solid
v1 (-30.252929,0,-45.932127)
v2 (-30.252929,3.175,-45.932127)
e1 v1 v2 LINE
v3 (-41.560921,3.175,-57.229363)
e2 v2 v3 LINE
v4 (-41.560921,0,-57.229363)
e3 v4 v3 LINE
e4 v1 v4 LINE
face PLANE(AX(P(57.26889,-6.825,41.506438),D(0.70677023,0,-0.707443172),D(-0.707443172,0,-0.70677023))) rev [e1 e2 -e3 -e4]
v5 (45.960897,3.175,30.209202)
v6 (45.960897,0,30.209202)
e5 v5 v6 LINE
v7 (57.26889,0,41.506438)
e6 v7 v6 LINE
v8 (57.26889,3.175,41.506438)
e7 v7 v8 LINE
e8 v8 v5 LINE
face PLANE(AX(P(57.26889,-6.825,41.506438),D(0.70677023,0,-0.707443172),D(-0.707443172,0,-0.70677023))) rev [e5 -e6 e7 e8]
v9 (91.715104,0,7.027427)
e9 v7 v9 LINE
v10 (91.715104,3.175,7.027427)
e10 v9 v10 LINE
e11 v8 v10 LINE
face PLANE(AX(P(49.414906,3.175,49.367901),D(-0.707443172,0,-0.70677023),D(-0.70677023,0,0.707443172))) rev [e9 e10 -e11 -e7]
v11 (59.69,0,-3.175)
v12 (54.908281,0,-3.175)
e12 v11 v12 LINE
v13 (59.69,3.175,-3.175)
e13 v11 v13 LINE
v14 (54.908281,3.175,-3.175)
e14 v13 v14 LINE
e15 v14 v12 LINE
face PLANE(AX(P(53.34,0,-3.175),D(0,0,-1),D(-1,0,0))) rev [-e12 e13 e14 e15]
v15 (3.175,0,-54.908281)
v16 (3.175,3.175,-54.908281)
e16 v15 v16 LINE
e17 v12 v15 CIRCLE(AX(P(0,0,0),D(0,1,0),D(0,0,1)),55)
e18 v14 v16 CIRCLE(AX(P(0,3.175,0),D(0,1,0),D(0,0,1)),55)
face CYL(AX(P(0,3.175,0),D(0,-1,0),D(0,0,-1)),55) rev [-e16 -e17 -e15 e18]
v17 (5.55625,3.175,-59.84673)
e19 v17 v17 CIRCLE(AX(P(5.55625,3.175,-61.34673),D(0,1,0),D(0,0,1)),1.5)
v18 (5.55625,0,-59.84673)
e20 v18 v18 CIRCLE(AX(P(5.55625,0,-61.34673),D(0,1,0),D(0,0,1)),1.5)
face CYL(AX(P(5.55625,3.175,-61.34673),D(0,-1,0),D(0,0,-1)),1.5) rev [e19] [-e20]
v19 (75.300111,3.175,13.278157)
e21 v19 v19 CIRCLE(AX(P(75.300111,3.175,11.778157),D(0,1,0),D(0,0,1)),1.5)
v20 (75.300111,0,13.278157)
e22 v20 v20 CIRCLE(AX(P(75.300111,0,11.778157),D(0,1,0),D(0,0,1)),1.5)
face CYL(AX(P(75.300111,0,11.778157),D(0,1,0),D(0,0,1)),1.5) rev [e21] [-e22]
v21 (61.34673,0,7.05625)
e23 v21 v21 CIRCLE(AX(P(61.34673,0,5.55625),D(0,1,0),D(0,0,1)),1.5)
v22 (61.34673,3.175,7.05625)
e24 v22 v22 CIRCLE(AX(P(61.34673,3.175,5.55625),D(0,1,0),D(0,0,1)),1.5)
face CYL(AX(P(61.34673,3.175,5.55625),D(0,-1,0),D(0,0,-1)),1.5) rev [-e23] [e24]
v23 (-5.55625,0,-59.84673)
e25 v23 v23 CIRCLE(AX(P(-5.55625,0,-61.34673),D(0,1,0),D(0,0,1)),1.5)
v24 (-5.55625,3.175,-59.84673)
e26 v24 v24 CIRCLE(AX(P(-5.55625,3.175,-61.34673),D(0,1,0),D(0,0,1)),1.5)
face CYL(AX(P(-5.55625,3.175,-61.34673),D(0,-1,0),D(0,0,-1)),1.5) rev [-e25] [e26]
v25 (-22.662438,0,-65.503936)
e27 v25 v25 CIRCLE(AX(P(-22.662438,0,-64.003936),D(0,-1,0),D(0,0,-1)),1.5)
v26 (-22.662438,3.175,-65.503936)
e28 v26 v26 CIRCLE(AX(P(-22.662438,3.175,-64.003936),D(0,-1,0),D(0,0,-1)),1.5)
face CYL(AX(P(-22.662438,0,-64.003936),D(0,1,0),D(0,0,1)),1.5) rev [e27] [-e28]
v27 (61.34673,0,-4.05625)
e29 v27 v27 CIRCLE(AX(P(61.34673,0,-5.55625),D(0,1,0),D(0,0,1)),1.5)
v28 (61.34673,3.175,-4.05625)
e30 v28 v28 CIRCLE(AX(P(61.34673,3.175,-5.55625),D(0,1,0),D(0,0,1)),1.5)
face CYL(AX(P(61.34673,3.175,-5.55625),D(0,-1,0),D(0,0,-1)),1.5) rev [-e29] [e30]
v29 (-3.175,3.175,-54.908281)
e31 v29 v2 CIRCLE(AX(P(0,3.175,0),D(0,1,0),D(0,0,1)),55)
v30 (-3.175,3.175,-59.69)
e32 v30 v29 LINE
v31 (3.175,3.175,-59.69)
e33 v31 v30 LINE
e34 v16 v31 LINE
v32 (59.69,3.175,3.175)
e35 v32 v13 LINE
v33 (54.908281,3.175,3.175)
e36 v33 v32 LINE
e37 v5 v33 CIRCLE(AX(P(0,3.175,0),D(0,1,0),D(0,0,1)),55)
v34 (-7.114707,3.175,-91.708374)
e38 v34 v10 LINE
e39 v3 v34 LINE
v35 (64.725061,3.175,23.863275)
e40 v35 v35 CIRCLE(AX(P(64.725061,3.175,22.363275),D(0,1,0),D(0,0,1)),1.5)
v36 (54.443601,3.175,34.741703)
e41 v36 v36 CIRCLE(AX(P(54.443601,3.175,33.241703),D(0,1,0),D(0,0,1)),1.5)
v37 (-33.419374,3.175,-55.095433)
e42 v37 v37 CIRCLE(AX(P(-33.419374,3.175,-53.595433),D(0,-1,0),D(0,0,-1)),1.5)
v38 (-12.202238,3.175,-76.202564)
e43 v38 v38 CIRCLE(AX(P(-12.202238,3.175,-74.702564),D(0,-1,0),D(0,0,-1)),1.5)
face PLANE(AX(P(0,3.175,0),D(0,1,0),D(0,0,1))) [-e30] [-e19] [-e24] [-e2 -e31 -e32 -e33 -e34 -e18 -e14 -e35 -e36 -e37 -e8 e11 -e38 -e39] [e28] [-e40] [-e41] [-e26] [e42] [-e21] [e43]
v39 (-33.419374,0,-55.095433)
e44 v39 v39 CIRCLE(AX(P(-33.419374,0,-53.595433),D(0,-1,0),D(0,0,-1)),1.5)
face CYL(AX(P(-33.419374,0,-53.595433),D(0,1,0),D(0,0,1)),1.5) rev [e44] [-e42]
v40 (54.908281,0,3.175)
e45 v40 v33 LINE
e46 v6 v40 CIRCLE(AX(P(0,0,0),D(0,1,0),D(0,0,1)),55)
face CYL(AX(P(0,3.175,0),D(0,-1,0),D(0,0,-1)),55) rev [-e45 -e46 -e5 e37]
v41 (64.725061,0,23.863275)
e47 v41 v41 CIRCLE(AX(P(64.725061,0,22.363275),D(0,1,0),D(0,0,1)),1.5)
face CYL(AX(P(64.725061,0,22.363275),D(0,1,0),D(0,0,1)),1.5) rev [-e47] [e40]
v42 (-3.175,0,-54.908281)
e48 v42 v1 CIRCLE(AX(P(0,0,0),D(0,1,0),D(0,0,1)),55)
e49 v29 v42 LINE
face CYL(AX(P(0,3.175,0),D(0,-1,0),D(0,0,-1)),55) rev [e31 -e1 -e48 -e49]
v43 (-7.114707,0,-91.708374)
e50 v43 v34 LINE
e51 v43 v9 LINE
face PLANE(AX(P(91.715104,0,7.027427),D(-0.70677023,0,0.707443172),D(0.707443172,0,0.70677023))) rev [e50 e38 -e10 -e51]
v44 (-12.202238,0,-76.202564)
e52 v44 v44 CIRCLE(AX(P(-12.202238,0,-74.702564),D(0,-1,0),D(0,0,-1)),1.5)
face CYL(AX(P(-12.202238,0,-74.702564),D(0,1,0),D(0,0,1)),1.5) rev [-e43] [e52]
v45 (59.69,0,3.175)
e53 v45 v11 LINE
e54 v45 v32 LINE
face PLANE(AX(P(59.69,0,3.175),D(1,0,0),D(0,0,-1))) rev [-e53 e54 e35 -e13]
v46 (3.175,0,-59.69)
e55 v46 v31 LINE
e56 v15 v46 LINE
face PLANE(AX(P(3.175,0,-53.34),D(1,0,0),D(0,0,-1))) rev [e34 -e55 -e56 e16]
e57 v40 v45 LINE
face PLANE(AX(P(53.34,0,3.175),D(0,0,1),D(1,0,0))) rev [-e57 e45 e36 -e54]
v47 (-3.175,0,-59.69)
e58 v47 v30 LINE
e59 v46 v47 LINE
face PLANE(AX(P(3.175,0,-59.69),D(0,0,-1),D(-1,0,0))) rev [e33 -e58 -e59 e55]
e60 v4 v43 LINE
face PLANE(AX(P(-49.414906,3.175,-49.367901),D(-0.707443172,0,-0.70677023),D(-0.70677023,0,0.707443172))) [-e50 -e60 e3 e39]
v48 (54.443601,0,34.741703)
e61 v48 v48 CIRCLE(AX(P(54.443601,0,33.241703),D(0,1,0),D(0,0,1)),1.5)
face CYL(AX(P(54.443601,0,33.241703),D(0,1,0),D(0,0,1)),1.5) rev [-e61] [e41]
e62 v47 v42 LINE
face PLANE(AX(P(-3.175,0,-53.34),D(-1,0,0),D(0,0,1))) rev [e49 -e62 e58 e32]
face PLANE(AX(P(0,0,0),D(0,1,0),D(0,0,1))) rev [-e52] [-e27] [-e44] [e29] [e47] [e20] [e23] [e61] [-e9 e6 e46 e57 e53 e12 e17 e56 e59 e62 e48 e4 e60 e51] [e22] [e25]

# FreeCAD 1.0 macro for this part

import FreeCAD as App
import Part
import Sketcher
Q = App.Units.Quantity


def add_polygon(sketch, points):
    """Adds a closed chain of lines whose ends are joined by coincident constraints."""
    first, n = sketch.GeometryCount, len(points)
    for a, b in zip(points, points[1:] + points[:1]):
        sketch.addGeometry(Part.LineSegment(App.Vector(*a, 0), App.Vector(*b, 0)), False)
    for i in range(n):
        sketch.addConstraint(Sketcher.Constraint("Coincident", first + i, 2, first + (i + 1) % n, 1))

doc = App.newDocument("Part")
params = doc.addObject("Spreadsheet::Sheet", "Params")
for row, (alias, value) in enumerate([
    ("sketch1_length", "5.5 in"),
    ("pad1_length", "0.125 in"),
    ("sketch2_width", "0.25 in"),
    ("sketch3_length", "5.5 in"),
    ("sketch3_length2", "2.75 in"),
    ("sketch4_length", "5.5 in"),
    ("sketch6_length", "5.5 in"),
    ("sketch6_length2", "0.4375 in"),
    ("pocket5_length", "10 mm"),
], start=1):
    params.set(f"A{row}", alias)
    params.set(f"B{row}", "=" + value)
    params.setAlias(f"B{row}", alias)

body = doc.addObject("PartDesign::Body", "Body")

sketch1 = body.newObject("Sketcher::SketchObject", "Sketch")
sketch1.AttachmentSupport = (doc.getObject("XZ_Plane"), [""])
sketch1.MapMode = "FlatFace"
add_polygon(sketch1, [(-98.782806, 0.047005), (0.047005, 98.782806), (98.782806, -0.047005), (-0.047005, -98.782806)])
sketch1.addGeometry(Part.Circle(App.Vector(5.55625, 61.34673, 0), App.Vector(0, 0, 1), 1.5), False)
sketch1.addGeometry(Part.Circle(App.Vector(61.34673, 5.55625, 0), App.Vector(0, 0, 1), 1.5), False)
sketch1.addGeometry(Part.Circle(App.Vector(-5.55625, 61.34673, 0), App.Vector(0, 0, 1), 1.5), False)
sketch1.addGeometry(Part.Circle(App.Vector(-61.34673, 5.55625, 0), App.Vector(0, 0, 1), 1.5), False)
sketch1.addGeometry(Part.Circle(App.Vector(61.34673, -5.55625, 0), App.Vector(0, 0, 1), 1.5), False)
sketch1.addGeometry(Part.Circle(App.Vector(5.55625, -61.34673, 0), App.Vector(0, 0, 1), 1.5), False)
sketch1.addGeometry(Part.Circle(App.Vector(0, 0, 0), App.Vector(0, 0, 1), 55), False)
sketch1.addGeometry(Part.Circle(App.Vector(-61.34673, -5.55625, 0), App.Vector(0, 0, 1), 1.5), False)
sketch1.addGeometry(Part.Circle(App.Vector(-5.55625, -61.34673, 0), App.Vector(0, 0, 1), 1.5), False)
sketch1.addConstraint([
    Sketcher.Constraint("Coincident", 10, 3, -1, 1),
    Sketcher.Constraint("Equal", 4, 5),
    Sketcher.Constraint("Equal", 5, 6),
    Sketcher.Constraint("Equal", 6, 7),
    Sketcher.Constraint("Equal", 7, 8),
    Sketcher.Constraint("Equal", 8, 9),
    Sketcher.Constraint("Equal", 9, 11),
    Sketcher.Constraint("Equal", 11, 12),
    Sketcher.Constraint("Symmetric", 7, 3, 8, 3, -1, 1),
    Sketcher.Constraint("Symmetric", 6, 3, 9, 3, -1, 1),
    Sketcher.Constraint("Symmetric", 5, 3, 11, 3, -1, 1),
    Sketcher.Constraint("Symmetric", 4, 3, 12, 3, -1, 1),
    Sketcher.Constraint("Symmetric", 0, 2, 2, 2, -1, 1),
    Sketcher.Constraint("Symmetric", 1, 2, 3, 2, -1, 1),
    Sketcher.Constraint("Symmetric", 4, 3, 6, 3, -2),
    Sketcher.Constraint("Symmetric", 5, 3, 7, 3, -2),
    Sketcher.Constraint("Perpendicular", 0, 1),
    Sketcher.Constraint("Equal", 0, 1),
    Sketcher.Constraint("Distance", 0, Q("5.5 in")),
    Sketcher.Constraint("Diameter", 4, Q("3 mm")),
    Sketcher.Constraint("Diameter", 10, Q("110 mm")),
    Sketcher.Constraint("DistanceX", -1, 1, 4, 3, Q("0.21875 in")),
    Sketcher.Constraint("DistanceY", -1, 1, 5, 3, Q("0.21875 in")),
    Sketcher.Constraint("DistanceY", -1, 1, 4, 3, Q("61.34673 mm")),
    Sketcher.Constraint("DistanceX", -1, 1, 5, 3, Q("61.34673 mm")),
    Sketcher.Constraint("DistanceX", -1, 1, 0, 2, Q("0.047005 mm")),
])
sketch1.setExpression("Constraints[22]", "Params.sketch1_length")
pad1 = body.newObject("PartDesign::Pad", "Pad")
pad1.Profile = sketch1
pad1.setExpression("Length", "Params.pad1_length")
pad1.Reversed = True

sketch2 = body.newObject("Sketcher::SketchObject", "Sketch001")
sketch2.AttachmentSupport = (doc.getObject("XZ_Plane"), [""])
sketch2.MapMode = "FlatFace"
sketch2.AttachmentOffset = App.Placement(App.Vector(0, 0, -0.125 * 25.4), App.Rotation())
add_polygon(sketch2, [(3.175, -59.69), (-3.175, -59.69), (-3.175, -52.244538), (3.175, -52.244538)])
add_polygon(sketch2, [(59.69, 3.175), (59.69, -3.175), (52.244538, -3.175), (52.244538, 3.175)])
add_polygon(sketch2, [(-3.175, 59.69), (3.175, 59.69), (3.175, 52.244538), (-3.175, 52.244538)])
add_polygon(sketch2, [(-59.69, -3.175), (-59.69, 3.175), (-52.244538, 3.175), (-52.244538, -3.175)])
sketch2.addConstraint([
    Sketcher.Constraint("Horizontal", 0),
    Sketcher.Constraint("Vertical", 1),
    Sketcher.Constraint("Horizontal", 2),
    Sketcher.Constraint("Vertical", 3),
    Sketcher.Constraint("Vertical", 4),
    Sketcher.Constraint("Horizontal", 5),
    Sketcher.Constraint("Vertical", 6),
    Sketcher.Constraint("Horizontal", 7),
    Sketcher.Constraint("Horizontal", 8),
    Sketcher.Constraint("Vertical", 9),
    Sketcher.Constraint("Horizontal", 10),
    Sketcher.Constraint("Vertical", 11),
    Sketcher.Constraint("Vertical", 12),
    Sketcher.Constraint("Horizontal", 13),
    Sketcher.Constraint("Vertical", 14),
    Sketcher.Constraint("Horizontal", 15),
    Sketcher.Constraint("Symmetric", 0, 2, 8, 2, -1, 1),
    Sketcher.Constraint("Symmetric", 2, 2, 10, 2, -1, 1),
    Sketcher.Constraint("Symmetric", 4, 2, 12, 2, -1, 1),
    Sketcher.Constraint("Symmetric", 6, 2, 14, 2, -1, 1),
    Sketcher.Constraint("Horizontal", 7, 2, 12, 2),
    Sketcher.Constraint("Vertical", 3, 2, 8, 2),
    Sketcher.Constraint("Equal", 15, 1),
    Sketcher.Constraint("Equal", 10, 4),
    Sketcher.Constraint("DistanceX", 0, 2, 0, 1, Q("0.25 in")),
    Sketcher.Constraint("DistanceY", 0, 2, -1, 1, Q("2.35 in")),
    Sketcher.Constraint("DistanceX", -1, 1, 4, 2, Q("2.35 in")),
    Sketcher.Constraint("DistanceX", 5, 2, 5, 1, Q("7.445462 mm")),
])
sketch2.setExpression("Constraints[40]", "Params.sketch2_width")
pocket1 = body.newObject("PartDesign::Pocket", "Pocket")
pocket1.Profile = sketch2
pocket1.Type = "ThroughAll"
pocket1.Reversed = True

sketch3 = body.newObject("Sketcher::SketchObject", "Sketch002")
sketch3.AttachmentSupport = (doc.getObject("XZ_Plane"), [""])
sketch3.MapMode = "FlatFace"
sketch3.AttachmentOffset = App.Placement(App.Vector(0, 0, -0.125 * 25.4), App.Rotation())
add_polygon(sketch3, [(49.414906, 49.367901), (-49.414906, -49.367901), (-98.782806, 0.047005), (0.047005, 98.782806)])
sketch3.addConstraint([
    Sketcher.Constraint("Symmetric", 0, 2, 3, 2, -1, 1),
    Sketcher.Constraint("Perpendicular", 0, 1),
    Sketcher.Constraint("Perpendicular", 1, 2),
    Sketcher.Constraint("Perpendicular", 2, 3),
    Sketcher.Constraint("Distance", 0, Q("5.5 in")),
    Sketcher.Constraint("Distance", 1, Q("2.75 in")),
    Sketcher.Constraint("DistanceY", 0, 2, -1, 1, Q("49.367901 mm")),
])
sketch3.setExpression("Constraints[8]", "Params.sketch3_length")
sketch3.setExpression("Constraints[9]", "Params.sketch3_length2")
pocket2 = body.newObject("PartDesign::Pocket", "Pocket001")
pocket2.Profile = sketch3
pocket2.Type = "ThroughAll"
pocket2.Reversed = True

sketch4 = body.newObject("Sketcher::SketchObject", "Sketch003")
sketch4.AttachmentSupport = (doc.getObject("XZ_Plane"), [""])
sketch4.MapMode = "FlatFace"
sketch4.AttachmentOffset = App.Placement(App.Vector(0, 0, -0.125 * 25.4), App.Rotation())
add_polygon(sketch4, [(91.715104, 7.027427), (98.782806, -0.047005), (-0.047005, -98.782806), (-7.114707, -91.708374)])
sketch4.addConstraint([
    Sketcher.Constraint("Perpendicular", 0, 1),
    Sketcher.Constraint("Perpendicular", 1, 2),
    Sketcher.Constraint("Perpendicular", 2, 3),
    Sketcher.Constraint("Distance", 1, Q("5.5 in")),
    Sketcher.Constraint("Distance", 0, Q("10 mm")),
    Sketcher.Constraint("DistanceY", 1, 2, 0, 2, Q("98.735801 mm")),
    Sketcher.Constraint("DistanceX", -1, 1, 0, 2, Q("98.782806 mm")),
    Sketcher.Constraint("DistanceY", 0, 2, -1, 1, Q("0.047005 mm")),
])
sketch4.setExpression("Constraints[7]", "Params.sketch4_length")
pocket3 = body.newObject("PartDesign::Pocket", "Pocket002")
pocket3.Profile = sketch4
pocket3.Type = "ThroughAll"
pocket3.Reversed = True

sketch5 = body.newObject("Sketcher::SketchObject", "Sketch004")
sketch5.AttachmentSupport = (doc.getObject("XZ_Plane"), [""])
sketch5.MapMode = "FlatFace"
sketch5.AttachmentOffset = App.Placement(App.Vector(0, 0, -0.125 * 25.4), App.Rotation())
sketch5.addGeometry([
    Part.Circle(App.Vector(64.725061, 22.363275, 0), App.Vector(0, 0, 1), 1.5),
    Part.Circle(App.Vector(75.300111, 11.778157, 0), App.Vector(0, 0, 1), 1.5),
    Part.Circle(App.Vector(-12.202238, -74.702564, 0), App.Vector(0, 0, 1), 1.5),
    Part.Circle(App.Vector(-22.662438, -64.003936, 0), App.Vector(0, 0, 1), 1.5),
    Part.Circle(App.Vector(54.443601, 33.241703, 0), App.Vector(0, 0, 1), 1.5),
    Part.Circle(App.Vector(-33.419374, -53.595433, 0), App.Vector(0, 0, 1), 1.5),
], False)
sketch5.addConstraint([
    Sketcher.Constraint("Equal", 0, 1),
    Sketcher.Constraint("Equal", 1, 2),
    Sketcher.Constraint("Equal", 2, 3),
    Sketcher.Constraint("Equal", 3, 4),
    Sketcher.Constraint("Equal", 4, 5),
    Sketcher.Constraint("Diameter", 0, Q("3 mm")),
    Sketcher.Constraint("DistanceX", -1, 1, 4, 3, Q("54.443601 mm")),
    Sketcher.Constraint("DistanceX", 2, 3, 0, 3, Q("76.927299 mm")),
    Sketcher.Constraint("DistanceX", 3, 3, 2, 3, Q("10.460199 mm")),
    Sketcher.Constraint("DistanceX", -1, 1, 0, 3, Q("64.725061 mm")),
    Sketcher.Constraint("DistanceX", -1, 1, 1, 3, Q("75.300111 mm")),
    Sketcher.Constraint("DistanceY", 1, 3, 0, 3, Q("10.585118 mm")),
    Sketcher.Constraint("DistanceY", 2, 3, 1, 3, Q("86.480721 mm")),
    Sketcher.Constraint("DistanceY", 3, 3, 0, 3, Q("86.367211 mm")),
    Sketcher.Constraint("DistanceY", 0, 3, 4, 3, Q("10.878428 mm")),
    Sketcher.Constraint("DistanceY", 2, 3, 5, 3, Q("21.107131 mm")),
    Sketcher.Constraint("DistanceY", -1, 1, 0, 3, Q("22.363275 mm")),
    Sketcher.Constraint("DistanceX", 5, 3, -1, 1, Q("33.419374 mm")),
])
pocket4 = body.newObject("PartDesign::Pocket", "Pocket003")
pocket4.Profile = sketch5
pocket4.Type = "ThroughAll"
pocket4.Reversed = True

sketch6 = body.newObject("Sketcher::SketchObject", "Sketch005")
sketch6.AttachmentSupport = (doc.getObject("XZ_Plane"), [""])
sketch6.MapMode = "FlatFace"
sketch6.AttachmentOffset = App.Placement(App.Vector(0, 0, -0.125 * 25.4), App.Rotation())
add_polygon(sketch6, [(49.414906, 49.367901), (57.26889, 41.506438), (-41.560921, -57.229363), (-49.414906, -49.367901)])
sketch6.addConstraint([
    Sketcher.Constraint("Symmetric", 2, 2, 3, 2, -1, 1),
    Sketcher.Constraint("Perpendicular", 0, 1),
    Sketcher.Constraint("Perpendicular", 1, 2),
    Sketcher.Constraint("Perpendicular", 2, 3),
    Sketcher.Constraint("Distance", 1, Q("5.5 in")),
    Sketcher.Constraint("Distance", 0, Q("0.4375 in")),
    Sketcher.Constraint("DistanceY", 2, 2, -1, 1, Q("49.367901 mm")),
])
sketch6.setExpression("Constraints[8]", "Params.sketch6_length")
sketch6.setExpression("Constraints[9]", "Params.sketch6_length2")
pocket5 = body.newObject("PartDesign::Pocket", "Pocket004")
pocket5.Profile = sketch6
pocket5.setExpression("Length", "Params.pocket5_length")
pocket5.Reversed = True

doc.recompute()
